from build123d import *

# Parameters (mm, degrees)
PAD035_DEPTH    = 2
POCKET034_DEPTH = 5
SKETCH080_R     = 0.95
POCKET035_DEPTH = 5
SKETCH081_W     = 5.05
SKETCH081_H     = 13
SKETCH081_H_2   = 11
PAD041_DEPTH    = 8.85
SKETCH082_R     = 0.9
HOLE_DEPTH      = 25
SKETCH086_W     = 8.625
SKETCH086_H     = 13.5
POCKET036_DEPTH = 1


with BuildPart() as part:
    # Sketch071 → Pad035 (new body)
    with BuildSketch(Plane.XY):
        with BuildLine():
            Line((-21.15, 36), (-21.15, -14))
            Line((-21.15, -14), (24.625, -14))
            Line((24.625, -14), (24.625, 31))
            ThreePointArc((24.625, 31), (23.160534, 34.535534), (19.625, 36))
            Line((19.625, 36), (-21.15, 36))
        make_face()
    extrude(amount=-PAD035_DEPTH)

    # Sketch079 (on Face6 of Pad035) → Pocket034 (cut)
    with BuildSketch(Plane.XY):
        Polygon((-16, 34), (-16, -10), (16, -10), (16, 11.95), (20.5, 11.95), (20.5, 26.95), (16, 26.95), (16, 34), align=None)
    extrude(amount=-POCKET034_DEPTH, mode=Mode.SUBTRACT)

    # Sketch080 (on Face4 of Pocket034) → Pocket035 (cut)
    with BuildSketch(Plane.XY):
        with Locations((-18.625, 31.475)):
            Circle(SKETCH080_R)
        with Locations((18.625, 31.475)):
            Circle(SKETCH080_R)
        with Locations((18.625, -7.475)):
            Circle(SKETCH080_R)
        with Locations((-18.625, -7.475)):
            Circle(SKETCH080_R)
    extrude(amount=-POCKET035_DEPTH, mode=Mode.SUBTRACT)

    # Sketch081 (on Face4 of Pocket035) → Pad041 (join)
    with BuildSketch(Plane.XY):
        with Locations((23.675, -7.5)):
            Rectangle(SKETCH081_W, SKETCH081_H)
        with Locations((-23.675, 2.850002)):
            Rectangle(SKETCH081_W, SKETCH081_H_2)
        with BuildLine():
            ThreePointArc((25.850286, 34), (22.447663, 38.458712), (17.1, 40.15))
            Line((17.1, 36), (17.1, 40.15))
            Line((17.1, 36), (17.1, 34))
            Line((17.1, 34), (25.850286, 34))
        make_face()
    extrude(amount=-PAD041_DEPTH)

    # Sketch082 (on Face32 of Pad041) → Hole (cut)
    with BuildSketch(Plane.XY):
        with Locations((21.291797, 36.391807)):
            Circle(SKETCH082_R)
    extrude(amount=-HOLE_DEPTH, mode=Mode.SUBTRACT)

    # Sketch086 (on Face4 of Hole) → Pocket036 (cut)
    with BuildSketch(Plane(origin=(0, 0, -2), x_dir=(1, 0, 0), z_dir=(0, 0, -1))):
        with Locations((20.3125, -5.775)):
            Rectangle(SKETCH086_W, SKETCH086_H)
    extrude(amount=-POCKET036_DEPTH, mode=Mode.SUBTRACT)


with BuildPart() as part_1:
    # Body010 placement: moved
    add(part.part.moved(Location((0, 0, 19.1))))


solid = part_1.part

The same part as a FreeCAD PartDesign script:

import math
import FreeCAD as App
import Part
import Sketcher
from FreeCAD import Vector


def add_polygon(sketch, points):
    """Adds a closed chain of lines whose ends are joined by coincident constraints."""
    first, n = sketch.GeometryCount, len(points)
    for a, b in zip(points, points[1:] + points[:1]):
        sketch.addGeometry(Part.LineSegment(App.Vector(*a, 0), App.Vector(*b, 0)), False)
    for i in range(n):
        sketch.addConstraint(Sketcher.Constraint("Coincident", first + i, 2, first + (i + 1) % n, 1))

doc = App.newDocument("Part")
params = doc.addObject("Spreadsheet::Sheet", "Params")
for row, (alias, value) in enumerate([
    ("sketch1_radius", "5 mm"),
    ("sketch1_height", "50 mm"),
    ("pad1_length", "2 mm"),
    ("sketch2_width", "32 mm"),
    ("sketch2_height", "44 mm"),
    ("sketch2_height2", "15 mm"),
    ("sketch2_width2", "4.5 mm"),
    ("sketch2_height3", "21.95 mm"),
    ("pocket1_length", "5 mm"),
    ("sketch3_diameter", "1.9 mm"),
    ("pocket2_length", "5 mm"),
    ("sketch4_radius", "9.300001 mm"),
    ("sketch4_height", "13 mm"),
    ("sketch4_height2", "11 mm"),
    ("sketch4_width", "5.05 mm"),
    ("sketch4_height3", "6.15 mm"),
    ("pad2_length", "8.85 mm"),
    ("sketch5_diameter", "1.8 mm"),
    ("pocket3_length", "25 mm"),
    ("sketch6_height", "13.5 mm"),
    ("pocket4_length", "1 mm"),
], start=1):
    params.set(f"A{row}", alias)
    params.set(f"B{row}", "=" + value)
    params.setAlias(f"B{row}", alias)

body = doc.addObject("PartDesign::Body", "Body")

sketch1 = body.newObject("Sketcher::SketchObject", "Sketch")
sketch1.AttachmentSupport = (doc.getObject("XY_Plane"), [""])
sketch1.MapMode = "FlatFace"
sketch1.addGeometry(Part.LineSegment(Vector(-21.15, 36, 0), Vector(-21.15, -14, 0)), False)
sketch1.addGeometry(Part.LineSegment(Vector(-21.15, -14, 0), Vector(24.625, -14, 0)), False)
sketch1.addGeometry(Part.LineSegment(Vector(24.625, -14, 0), Vector(24.625, 31, 0)), False)
sketch1.addGeometry(Part.ArcOfCircle(Part.Circle(Vector(19.625, 31, 0), Vector(0, 0, 1), 5), math.radians(-0.000004), math.radians(90.000004)), False)
sketch1.addGeometry(Part.LineSegment(Vector(19.625, 36, 0), Vector(-21.15, 36, 0)), False)
sketch1.addConstraint(Sketcher.Constraint("Coincident", 0, 2, 1, 1))
sketch1.addConstraint(Sketcher.Constraint("Coincident", 1, 2, 2, 1))
sketch1.addConstraint(Sketcher.Constraint("Tangent", 2, 2, 3, 1))
sketch1.addConstraint(Sketcher.Constraint("Tangent", 3, 2, 4, 1))
sketch1.addConstraint(Sketcher.Constraint("Coincident", 4, 2, 0, 1))
sketch1.addConstraint(Sketcher.Constraint("Vertical", 0))
sketch1.addConstraint(Sketcher.Constraint("Horizontal", 1))
sketch1.addConstraint(Sketcher.Constraint("Vertical", 2))
sketch1.addConstraint(Sketcher.Constraint("Horizontal", 4))
sketch1.addConstraint(Sketcher.Constraint("Radius", 3, 5.0))
sketch1.addConstraint(Sketcher.Constraint("DistanceY", 0, 2, 0, 1, 50.0))
sketch1.addConstraint(Sketcher.Constraint("DistanceY", -1, 1, 3, 3, 31.0))
sketch1.addConstraint(Sketcher.Constraint("DistanceX", 1, 1, 1, 2, 45.775))
sketch1.addConstraint(Sketcher.Constraint("DistanceX", 0, 2, -1, 1, 21.15))
sketch1.setExpression("Constraints[9]", "Params.sketch1_radius")
sketch1.setExpression("Constraints[10]", "Params.sketch1_height")
pad1 = body.newObject("PartDesign::Pad", "Pad")
pad1.Profile = sketch1
pad1.setExpression("Length", "Params.pad1_length")
pad1.Reversed = True

sketch2 = body.newObject("Sketcher::SketchObject", "Sketch001")
sketch2.AttachmentSupport = (doc.getObject("XY_Plane"), [""])
sketch2.MapMode = "FlatFace"
add_polygon(sketch2, [(-16, 34), (-16, -10), (16, -10), (16, 11.95), (20.5, 11.95), (20.5, 26.95), (16, 26.95), (16, 34)])
sketch2.addConstraint(Sketcher.Constraint("Vertical", 0))
sketch2.addConstraint(Sketcher.Constraint("Horizontal", 1))
sketch2.addConstraint(Sketcher.Constraint("Vertical", 2))
sketch2.addConstraint(Sketcher.Constraint("Horizontal", 3))
sketch2.addConstraint(Sketcher.Constraint("Vertical", 4))
sketch2.addConstraint(Sketcher.Constraint("Horizontal", 5))
sketch2.addConstraint(Sketcher.Constraint("Vertical", 6))
sketch2.addConstraint(Sketcher.Constraint("Horizontal", 7))
sketch2.addConstraint(Sketcher.Constraint("Vertical", 2, 2, 5, 2))
sketch2.addConstraint(Sketcher.Constraint("DistanceX", 1, 1, 1, 2, 32.0))
sketch2.addConstraint(Sketcher.Constraint("DistanceY", 0, 2, 0, 1, 44.0))
sketch2.addConstraint(Sketcher.Constraint("DistanceY", 4, 1, 4, 2, 15.0))
sketch2.addConstraint(Sketcher.Constraint("DistanceX", 3, 1, 3, 2, 4.5))
sketch2.addConstraint(Sketcher.Constraint("DistanceX", 0, 2, -1, 1, 16.0))
sketch2.addConstraint(Sketcher.Constraint("DistanceY", 0, 2, -1, 1, 10.0))
sketch2.addConstraint(Sketcher.Constraint("DistanceY", 2, 1, 2, 2, 21.95))
sketch2.setExpression("Constraints[17]", "Params.sketch2_width")
sketch2.setExpression("Constraints[18]", "Params.sketch2_height")
sketch2.setExpression("Constraints[19]", "Params.sketch2_height2")
sketch2.setExpression("Constraints[20]", "Params.sketch2_width2")
sketch2.setExpression("Constraints[23]", "Params.sketch2_height3")
pocket1 = body.newObject("PartDesign::Pocket", "Pocket")
pocket1.Profile = sketch2
pocket1.setExpression("Length", "Params.pocket1_length")

sketch3 = body.newObject("Sketcher::SketchObject", "Sketch002")
sketch3.AttachmentSupport = (doc.getObject("XY_Plane"), [""])
sketch3.MapMode = "FlatFace"
sketch3.addGeometry(Part.Circle(Vector(-18.625, 31.475, 0), Vector(0, 0, 1), 0.95), False)
sketch3.addGeometry(Part.Circle(Vector(18.625, 31.475, 0), Vector(0, 0, 1), 0.95), False)
sketch3.addGeometry(Part.Circle(Vector(18.625, -7.475, 0), Vector(0, 0, 1), 0.95), False)
sketch3.addGeometry(Part.Circle(Vector(-18.625, -7.475, 0), Vector(0, 0, 1), 0.95), False)
sketch3.addConstraint(Sketcher.Constraint("Equal", 0, 1))
sketch3.addConstraint(Sketcher.Constraint("Equal", 1, 2))
sketch3.addConstraint(Sketcher.Constraint("Equal", 2, 3))
sketch3.addConstraint(Sketcher.Constraint("Symmetric", 0, 3, 1, 3, -2))
sketch3.addConstraint(Sketcher.Constraint("Symmetric", 2, 3, 3, 3, -2))
sketch3.addConstraint(Sketcher.Constraint("Vertical", 1, 3, 2, 3))
sketch3.addConstraint(Sketcher.Constraint("Diameter", 0, 1.9))
sketch3.addConstraint(Sketcher.Constraint("DistanceX", 0, 3, 1, 3, 37.25))
sketch3.addConstraint(Sketcher.Constraint("DistanceY", 2, 3, 1, 3, 38.95))
sketch3.addConstraint(Sketcher.Constraint("DistanceY", -1, 1, 0, 3, 31.475))
sketch3.setExpression("Constraints[6]", "Params.sketch3_diameter")
pocket2 = body.newObject("PartDesign::Pocket", "Pocket001")
pocket2.Profile = sketch3
pocket2.setExpression("Length", "Params.pocket2_length")

sketch4 = body.newObject("Sketcher::SketchObject", "Sketch003")
sketch4.AttachmentSupport = (doc.getObject("XY_Plane"), [""])
sketch4.MapMode = "FlatFace"
add_polygon(sketch4, [(21.15, -1), (21.15, -14), (26.2, -14), (26.2, -1)])
add_polygon(sketch4, [(-26.2, 8.350002), (-26.2, -2.649998), (-21.15, -2.649998), (-21.15, 8.350002)])
sketch4.addGeometry(Part.ArcOfCircle(Part.Circle(Vector(17.099999, 30.849999, 0), Vector(0, 0, 1), 9.300001), math.radians(19.798286), math.radians(89.999996)), False)
sketch4.addGeometry(Part.LineSegment(Vector(17.1, 40.15, 0), Vector(17.1, 34, 0)), False)
sketch4.addGeometry(Part.LineSegment(Vector(17.1, 34, 0), Vector(25.850286, 34, 0)), False)
sketch4.addConstraint(Sketcher.Constraint("Coincident", 8, 2, 9, 1))
sketch4.addConstraint(Sketcher.Constraint("Coincident", 9, 2, 10, 1))
sketch4.addConstraint(Sketcher.Constraint("Coincident", 10, 2, 8, 1))
sketch4.addConstraint(Sketcher.Constraint("Vertical", 0))
sketch4.addConstraint(Sketcher.Constraint("Horizontal", 1))
sketch4.addConstraint(Sketcher.Constraint("Vertical", 2))
sketch4.addConstraint(Sketcher.Constraint("Horizontal", 3))
sketch4.addConstraint(Sketcher.Constraint("Vertical", 4))
sketch4.addConstraint(Sketcher.Constraint("Horizontal", 5))
sketch4.addConstraint(Sketcher.Constraint("Vertical", 6))
sketch4.addConstraint(Sketcher.Constraint("Horizontal", 7))
sketch4.addConstraint(Sketcher.Constraint("Vertical", 9))
sketch4.addConstraint(Sketcher.Constraint("Horizontal", 10))
sketch4.addConstraint(Sketcher.Constraint("Equal", 3, 5))
sketch4.addConstraint(Sketcher.Constraint("Radius", 8, 9.300001))
sketch4.addConstraint(Sketcher.Constraint("DistanceY", 0, 2, 0, 1, 13.0))
sketch4.addConstraint(Sketcher.Constraint("DistanceY", 4, 2, 4, 1, 11.0))
sketch4.addConstraint(Sketcher.Constraint("DistanceY", 0, 2, -1, 1, 14.0))
sketch4.addConstraint(Sketcher.Constraint("DistanceY", -1, 1, 9, 2, 34.0))
sketch4.addConstraint(Sketcher.Constraint("DistanceX", 1, 1, 1, 2, 5.05))
sketch4.addConstraint(Sketcher.Constraint("DistanceY", 9, 2, 9, 1, 6.15))
sketch4.addConstraint(Sketcher.Constraint("DistanceX", -1, 1, 8, 3, 17.099999))
sketch4.addConstraint(Sketcher.Constraint("DistanceX", -1, 1, 1, 2, 26.2))
sketch4.addConstraint(Sketcher.Constraint("DistanceX", 4, 2, -1, 1, 26.2))
sketch4.addConstraint(Sketcher.Constraint("DistanceX", -1, 1, 8, 2, 17.1))
sketch4.addConstraint(Sketcher.Constraint("DistanceY", 4, 2, -1, 1, 2.649998))
sketch4.setExpression("Constraints[22]", "Params.sketch4_radius")
sketch4.setExpression("Constraints[23]", "Params.sketch4_height")
sketch4.setExpression("Constraints[24]", "Params.sketch4_height2")
sketch4.setExpression("Constraints[27]", "Params.sketch4_width")
sketch4.setExpression("Constraints[28]", "Params.sketch4_height3")
pad2 = body.newObject("PartDesign::Pad", "Pad001")
pad2.Profile = sketch4
pad2.setExpression("Length", "Params.pad2_length")
pad2.Reversed = True

sketch5 = body.newObject("Sketcher::SketchObject", "Sketch004")
sketch5.AttachmentSupport = (doc.getObject("XY_Plane"), [""])
sketch5.MapMode = "FlatFace"
sketch5.addGeometry(Part.Circle(Vector(21.291797, 36.391807, 0), Vector(0, 0, 1), 0.9), False)
sketch5.addConstraint(Sketcher.Constraint("Diameter", 0, 1.8))
sketch5.addConstraint(Sketcher.Constraint("DistanceX", -1, 1, 0, 3, 21.291797))
sketch5.addConstraint(Sketcher.Constraint("DistanceY", -1, 1, 0, 3, 36.391807))
sketch5.setExpression("Constraints[0]", "Params.sketch5_diameter")
pocket3 = body.newObject("PartDesign::Pocket", "Pocket002")
pocket3.Profile = sketch5
pocket3.setExpression("Length", "Params.pocket3_length")

sketch6 = body.newObject("Sketcher::SketchObject", "Sketch005")
sketch6.AttachmentSupport = (doc.getObject("XY_Plane"), [""])
sketch6.MapMode = "FlatFace"
sketch6.AttachmentOffset = App.Placement(Vector(0, 0, -2), App.Rotation())
add_polygon(sketch6, [(16, -0.975), (16, 12.525), (24.625, 12.525), (24.625, -0.975)])
sketch6.addConstraint(Sketcher.Constraint("Vertical", 0))
sketch6.addConstraint(Sketcher.Constraint("Horizontal", 1))
sketch6.addConstraint(Sketcher.Constraint("Vertical", 2))
sketch6.addConstraint(Sketcher.Constraint("Horizontal", 3))
sketch6.addConstraint(Sketcher.Constraint("DistanceY", 0, 1, 0, 2, 13.5))
sketch6.addConstraint(Sketcher.Constraint("DistanceX", -1, 1, 0, 2, 16.0))
sketch6.addConstraint(Sketcher.Constraint("DistanceX", 1, 1, 1, 2, 8.625))
sketch6.addConstraint(Sketcher.Constraint("DistanceY", -1, 1, 0, 2, 12.525))
sketch6.setExpression("Constraints[8]", "Params.sketch6_height")
pocket4 = body.newObject("PartDesign::Pocket", "Pocket003")
pocket4.Profile = sketch6
pocket4.setExpression("Length", "Params.pocket4_length")
pocket4.Reversed = True
body2 = doc.addObject("PartDesign::Body", "Body001")
doc.recompute()

body.Placement = App.Placement(Vector(0, 0, 19.1), App.Rotation(Vector(0, 0, 1), 0))
boolean = body2.newObject("PartDesign::Boolean", "Boolean")
boolean.Type = "Fuse"
boolean.addObjects([body])

doc.recompute()
